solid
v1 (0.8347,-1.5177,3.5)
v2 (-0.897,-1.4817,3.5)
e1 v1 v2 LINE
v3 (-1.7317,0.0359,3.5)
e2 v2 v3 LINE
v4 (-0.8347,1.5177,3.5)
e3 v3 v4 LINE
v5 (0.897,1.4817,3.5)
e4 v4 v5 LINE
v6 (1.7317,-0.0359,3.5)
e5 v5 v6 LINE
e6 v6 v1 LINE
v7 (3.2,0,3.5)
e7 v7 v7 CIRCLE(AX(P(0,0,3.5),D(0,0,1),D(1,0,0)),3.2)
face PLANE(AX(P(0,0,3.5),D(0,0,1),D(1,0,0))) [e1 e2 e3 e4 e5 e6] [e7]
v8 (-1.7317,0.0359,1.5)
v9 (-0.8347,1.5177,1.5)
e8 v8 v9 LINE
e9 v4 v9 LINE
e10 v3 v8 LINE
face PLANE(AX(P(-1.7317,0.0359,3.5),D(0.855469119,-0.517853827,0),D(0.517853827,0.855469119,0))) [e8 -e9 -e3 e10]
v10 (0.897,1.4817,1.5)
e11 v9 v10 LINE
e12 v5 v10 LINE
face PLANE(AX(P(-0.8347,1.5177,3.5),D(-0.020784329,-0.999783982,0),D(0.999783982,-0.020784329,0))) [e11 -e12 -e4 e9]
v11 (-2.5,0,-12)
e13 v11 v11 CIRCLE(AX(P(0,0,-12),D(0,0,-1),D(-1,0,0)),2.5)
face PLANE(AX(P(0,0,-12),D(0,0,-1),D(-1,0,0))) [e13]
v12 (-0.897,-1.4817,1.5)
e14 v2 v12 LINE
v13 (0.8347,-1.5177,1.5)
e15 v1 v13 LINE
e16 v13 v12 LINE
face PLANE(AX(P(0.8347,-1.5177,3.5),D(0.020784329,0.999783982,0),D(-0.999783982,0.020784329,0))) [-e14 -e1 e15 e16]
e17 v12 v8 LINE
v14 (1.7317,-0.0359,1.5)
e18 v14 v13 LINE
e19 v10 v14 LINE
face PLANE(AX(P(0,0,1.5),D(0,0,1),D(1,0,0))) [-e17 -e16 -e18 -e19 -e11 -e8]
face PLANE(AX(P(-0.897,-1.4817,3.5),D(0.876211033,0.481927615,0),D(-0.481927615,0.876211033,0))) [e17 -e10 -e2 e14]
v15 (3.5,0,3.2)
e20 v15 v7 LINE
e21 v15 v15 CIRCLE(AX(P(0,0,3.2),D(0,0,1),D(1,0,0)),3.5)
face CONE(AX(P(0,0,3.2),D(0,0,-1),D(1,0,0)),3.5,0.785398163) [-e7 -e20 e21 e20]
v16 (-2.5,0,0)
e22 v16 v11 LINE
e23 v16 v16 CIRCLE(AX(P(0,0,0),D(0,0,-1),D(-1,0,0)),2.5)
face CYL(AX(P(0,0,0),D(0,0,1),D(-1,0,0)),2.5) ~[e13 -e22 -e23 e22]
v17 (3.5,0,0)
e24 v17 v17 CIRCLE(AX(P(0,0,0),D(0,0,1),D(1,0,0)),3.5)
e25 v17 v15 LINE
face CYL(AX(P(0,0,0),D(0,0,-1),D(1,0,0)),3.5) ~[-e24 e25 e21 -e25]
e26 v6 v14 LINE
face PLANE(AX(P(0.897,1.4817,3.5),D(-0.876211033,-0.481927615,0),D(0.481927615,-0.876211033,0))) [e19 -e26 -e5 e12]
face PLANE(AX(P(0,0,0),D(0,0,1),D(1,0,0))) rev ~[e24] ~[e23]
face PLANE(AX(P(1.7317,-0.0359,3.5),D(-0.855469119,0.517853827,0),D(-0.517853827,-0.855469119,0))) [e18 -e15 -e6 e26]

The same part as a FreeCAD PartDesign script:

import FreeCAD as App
import Part
import Sketcher
Q = App.Units.Quantity


def edges_at(feature, points):
    """Names of the edges that pass closest to the given points."""
    edges = feature.Shape.Edges
    near = lambda p: min(range(len(edges)), key=lambda i: edges[i].distToShape(Part.Vertex(*p))[0])
    return sorted({f"Edge{near(p) + 1}" for p in points})

doc = App.newDocument("Part")
params = doc.addObject("Spreadsheet::Sheet", "Params")
for row, (alias, value) in enumerate([
    ("sketch1_diameter", "7 mm"),
    ("pad1_length", "3.5 mm"),
    ("sketch2_diameter", "5 mm"),
    ("pad2_length", "12 mm"),
    ("pocket1_length", "2 mm"),
    ("chamfer_size", "0.3 mm"),
], start=1):
    params.set(f"A{row}", alias)
    params.set(f"B{row}", "=" + value)
    params.setAlias(f"B{row}", alias)

body = doc.addObject("PartDesign::Body", "Body")

# Sketch on XY plane
sketch1 = doc.addObject("Sketcher::SketchObject", "Sketch")
body.addObject(sketch1)
sketch1.AttachmentSupport = (doc.XY_Plane, [""])
sketch1.MapMode = "FlatFace"
sketch1.addGeometry(Part.Circle(App.Vector(0, 0, 0), App.Vector(0, 0, 1), 3.5), False)
sketch1.addConstraint([
    Sketcher.Constraint("Coincident", 0, 3, -1, 1),
    Sketcher.Constraint("Diameter", 0, Q("7 mm")),
])
sketch1.setExpression("Constraints[1]", "Params.sketch1_diameter")
pad1 = doc.addObject("PartDesign::Pad", "Pad")
body.addObject(pad1)
pad1.Profile = sketch1
pad1.setExpression("Length", "Params.pad1_length")

# Sketch on XY plane
sketch2 = doc.addObject("Sketcher::SketchObject", "Sketch001")
body.addObject(sketch2)
sketch2.AttachmentSupport = (doc.XY_Plane, [""])
sketch2.MapMode = "FlatFace"
sketch2.addGeometry(Part.Circle(App.Vector(0, 0, 0), App.Vector(0, 0, 1), 2.5), False)
sketch2.addConstraint([
    Sketcher.Constraint("Coincident", 0, 3, -1, 1),
    Sketcher.Constraint("Diameter", 0, Q("5 mm")),
])
sketch2.setExpression("Constraints[1]", "Params.sketch2_diameter")
pad2 = doc.addObject("PartDesign::Pad", "Pad001")
body.addObject(pad2)
pad2.Profile = sketch2
pad2.setExpression("Length", "Params.pad2_length")
pad2.Reversed = True

# Sketch on XY plane
sketch3 = doc.addObject("Sketcher::SketchObject", "Sketch002")
body.addObject(sketch3)
sketch3.AttachmentSupport = (doc.XY_Plane, [""])
sketch3.MapMode = "FlatFace"
sketch3.AttachmentOffset = App.Placement(App.Vector(0, 0, 3.5), App.Rotation())
sketch3.addGeometry([
    Part.LineSegment(App.Vector(0.9, 1.5, 0), App.Vector(-0.8, 1.5, 0)),  # 0
    Part.LineSegment(App.Vector(-0.8, 1.5, 0), App.Vector(-1.7, 0, 0)),  # 1
    Part.LineSegment(App.Vector(-1.7, 0, 0), App.Vector(-0.9, -1.5, 0)),  # 2
    Part.LineSegment(App.Vector(-0.9, -1.5, 0), App.Vector(0.8, -1.5, 0)),  # 3
    Part.LineSegment(App.Vector(0.8, -1.5, 0), App.Vector(1.7, 0, 0)),  # 4
    Part.LineSegment(App.Vector(1.7, 0, 0), App.Vector(0.9, 1.5, 0)),  # 5
], False)
sketch3.addConstraint([
    Sketcher.Constraint("Coincident", 0, 2, 1, 1),
    Sketcher.Constraint("Coincident", 1, 2, 2, 1),
    Sketcher.Constraint("Coincident", 2, 2, 3, 1),
    Sketcher.Constraint("Coincident", 3, 2, 4, 1),
    Sketcher.Constraint("Coincident", 4, 2, 5, 1),
    Sketcher.Constraint("Coincident", 5, 2, 0, 1),
    Sketcher.Constraint("Symmetric", 0, 2, 3, 2, -1, 1),
    Sketcher.Constraint("Symmetric", 1, 2, 4, 2, -1, 1),
    Sketcher.Constraint("Symmetric", 2, 2, 5, 2, -1, 1),
    Sketcher.Constraint("Equal", 0, 1),
    Sketcher.Constraint("Equal", 1, 2),
    Sketcher.Constraint("Angle", 0, Q("178.809 deg")),
    Sketcher.Constraint("DistanceY", 2, 2, 0, 2, Q("2.9994 mm")),
    Sketcher.Constraint("Distance", 0, Q("1.732 mm")),
    Sketcher.Constraint("DistanceY", -1, 1, 1, 2, Q("0.036 mm")),
])
pocket1 = doc.addObject("PartDesign::Pocket", "Pocket")
body.addObject(pocket1)
pocket1.Profile = sketch3
pocket1.setExpression("Length", "Params.pocket1_length")
doc.recompute()

chamfer = doc.addObject("PartDesign::Chamfer", "Chamfer")
body.addObject(chamfer)
chamfer.Base = (pocket1, edges_at(pocket1, [(-3.5, 0, 3.5)]))
chamfer.setExpression("Size", "Params.chamfer_size")

doc.recompute()
